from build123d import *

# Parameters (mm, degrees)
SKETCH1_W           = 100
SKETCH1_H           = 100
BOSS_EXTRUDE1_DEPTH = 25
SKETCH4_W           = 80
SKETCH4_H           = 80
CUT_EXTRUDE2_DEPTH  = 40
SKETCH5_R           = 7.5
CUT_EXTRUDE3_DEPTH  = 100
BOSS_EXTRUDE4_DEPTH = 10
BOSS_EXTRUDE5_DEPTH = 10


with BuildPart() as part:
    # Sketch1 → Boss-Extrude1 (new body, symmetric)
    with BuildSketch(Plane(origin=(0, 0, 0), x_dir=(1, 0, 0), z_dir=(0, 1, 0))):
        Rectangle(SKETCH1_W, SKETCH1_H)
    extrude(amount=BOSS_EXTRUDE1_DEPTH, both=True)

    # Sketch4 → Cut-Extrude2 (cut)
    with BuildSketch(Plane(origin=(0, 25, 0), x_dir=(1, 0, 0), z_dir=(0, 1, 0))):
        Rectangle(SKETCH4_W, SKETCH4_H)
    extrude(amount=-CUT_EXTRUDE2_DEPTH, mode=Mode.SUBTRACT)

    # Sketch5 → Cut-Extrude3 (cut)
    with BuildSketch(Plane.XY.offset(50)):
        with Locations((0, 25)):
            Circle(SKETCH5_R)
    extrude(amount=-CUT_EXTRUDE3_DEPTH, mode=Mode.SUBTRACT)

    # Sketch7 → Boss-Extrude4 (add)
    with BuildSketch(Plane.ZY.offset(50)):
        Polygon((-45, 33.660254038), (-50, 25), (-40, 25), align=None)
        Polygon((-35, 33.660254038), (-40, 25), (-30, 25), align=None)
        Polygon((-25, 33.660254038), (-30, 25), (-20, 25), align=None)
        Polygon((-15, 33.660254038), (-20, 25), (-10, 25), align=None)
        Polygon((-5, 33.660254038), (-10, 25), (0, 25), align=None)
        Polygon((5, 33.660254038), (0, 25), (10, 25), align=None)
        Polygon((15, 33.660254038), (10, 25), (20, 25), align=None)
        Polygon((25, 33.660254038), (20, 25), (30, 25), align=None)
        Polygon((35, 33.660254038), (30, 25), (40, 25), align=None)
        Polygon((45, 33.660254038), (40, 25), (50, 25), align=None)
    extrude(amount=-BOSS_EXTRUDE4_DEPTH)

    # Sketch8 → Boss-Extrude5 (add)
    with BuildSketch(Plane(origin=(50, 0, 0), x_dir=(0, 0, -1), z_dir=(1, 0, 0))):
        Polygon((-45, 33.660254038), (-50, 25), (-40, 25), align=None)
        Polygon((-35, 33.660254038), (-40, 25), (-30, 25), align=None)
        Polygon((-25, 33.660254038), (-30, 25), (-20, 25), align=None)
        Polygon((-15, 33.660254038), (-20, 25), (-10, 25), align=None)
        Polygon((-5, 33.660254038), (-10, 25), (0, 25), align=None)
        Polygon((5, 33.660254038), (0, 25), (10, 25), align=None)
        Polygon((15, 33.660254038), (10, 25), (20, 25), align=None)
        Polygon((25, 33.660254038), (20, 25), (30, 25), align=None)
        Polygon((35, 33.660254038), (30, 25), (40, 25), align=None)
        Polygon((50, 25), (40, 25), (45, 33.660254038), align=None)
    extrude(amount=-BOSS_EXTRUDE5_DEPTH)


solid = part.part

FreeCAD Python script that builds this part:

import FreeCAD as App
import Part
import Sketcher
Q = App.Units.Quantity

doc = App.newDocument("Part")
body = doc.addObject("PartDesign::Body", "Body")

sketch1 = body.newObject("Sketcher::SketchObject", "Sketch")
sketch1.AttachmentSupport = (doc.getObject("XZ_Plane"), [""])
sketch1.MapMode = "FlatFace"
sketch1.addGeometry(Part.LineSegment(App.Vector(-50, -50, 0), App.Vector(-50, 50, 0)), False)
sketch1.addGeometry(Part.LineSegment(App.Vector(-50, 50, 0), App.Vector(50, 50, 0)), False)
sketch1.addGeometry(Part.LineSegment(App.Vector(50, 50, 0), App.Vector(50, -50, 0)), False)
sketch1.addGeometry(Part.LineSegment(App.Vector(50, -50, 0), App.Vector(-50, -50, 0)), False)
sketch1.addConstraint(Sketcher.Constraint("Coincident", 0, 2, 1, 1))
sketch1.addConstraint(Sketcher.Constraint("Coincident", 1, 2, 2, 1))
sketch1.addConstraint(Sketcher.Constraint("Coincident", 2, 2, 3, 1))
sketch1.addConstraint(Sketcher.Constraint("Coincident", 3, 2, 0, 1))
sketch1.addConstraint(Sketcher.Constraint("Vertical", 0))
sketch1.addConstraint(Sketcher.Constraint("Horizontal", 1))
sketch1.addConstraint(Sketcher.Constraint("Vertical", 2))
sketch1.addConstraint(Sketcher.Constraint("Horizontal", 3))
sketch1.addConstraint(Sketcher.Constraint("Symmetric", 0, 2, 2, 2, -1, 1))
sketch1.addConstraint(Sketcher.Constraint("Equal", 3, 0))
sketch1.addConstraint(Sketcher.Constraint("DistanceX", 1, 1, 1, 2, 100.0))
pad1 = body.newObject("PartDesign::Pad", "Pad")
pad1.Profile = sketch1
pad1.Length = 50
pad1.Midplane = True

sketch2 = body.newObject("Sketcher::SketchObject", "Sketch001")
sketch2.AttachmentSupport = (doc.getObject("XZ_Plane"), [""])
sketch2.MapMode = "FlatFace"
sketch2.AttachmentOffset = App.Placement(App.Vector(0, 0, -25), App.Rotation())
sketch2.addGeometry(Part.LineSegment(App.Vector(-40, -40, 0), App.Vector(-40, 40, 0)), False)
sketch2.addGeometry(Part.LineSegment(App.Vector(-40, 40, 0), App.Vector(40, 40, 0)), False)
sketch2.addGeometry(Part.LineSegment(App.Vector(40, 40, 0), App.Vector(40, -40, 0)), False)
sketch2.addGeometry(Part.LineSegment(App.Vector(40, -40, 0), App.Vector(-40, -40, 0)), False)
sketch2.addConstraint(Sketcher.Constraint("Coincident", 0, 2, 1, 1))
sketch2.addConstraint(Sketcher.Constraint("Coincident", 1, 2, 2, 1))
sketch2.addConstraint(Sketcher.Constraint("Coincident", 2, 2, 3, 1))
sketch2.addConstraint(Sketcher.Constraint("Coincident", 3, 2, 0, 1))
sketch2.addConstraint(Sketcher.Constraint("Vertical", 0))
sketch2.addConstraint(Sketcher.Constraint("Horizontal", 1))
sketch2.addConstraint(Sketcher.Constraint("Vertical", 2))
sketch2.addConstraint(Sketcher.Constraint("Horizontal", 3))
sketch2.addConstraint(Sketcher.Constraint("Symmetric", 0, 2, 2, 2, -1, 1))
sketch2.addConstraint(Sketcher.Constraint("Equal", 3, 0))
sketch2.addConstraint(Sketcher.Constraint("DistanceX", 1, 1, 1, 2, 80.0))
pocket1 = body.newObject("PartDesign::Pocket", "Pocket")
pocket1.Profile = sketch2
pocket1.Length = 40
pocket1.Reversed = True

sketch3 = body.newObject("Sketcher::SketchObject", "Sketch002")
sketch3.AttachmentSupport = (doc.getObject("XY_Plane"), [""])
sketch3.MapMode = "FlatFace"
sketch3.AttachmentOffset = App.Placement(App.Vector(0, 0, 50), App.Rotation())
sketch3.addGeometry(Part.Circle(App.Vector(0, 25, 0), App.Vector(0, 0, 1), 8), False)
sketch3.addConstraint(Sketcher.Constraint("PointOnObject", 0, 3, -2))
sketch3.addConstraint(Sketcher.Constraint("Diameter", 0, 15.0))
sketch3.addConstraint(Sketcher.Constraint("DistanceY", -1, 1, 0, 3, 25.0))
pocket2 = body.newObject("PartDesign::Pocket", "Pocket001")
pocket2.Profile = sketch3
pocket2.Length = 100

sketch4 = body.newObject("Sketcher::SketchObject", "Sketch003")
sketch4.AttachmentSupport = (doc.getObject("YZ_Plane"), [""])
sketch4.MapMode = "FlatFace"
sketch4.AttachmentOffset = App.Placement(App.Vector(0, 0, -50), App.Rotation())
sketch4.addGeometry(Part.LineSegment(App.Vector(34, -45, 0), App.Vector(25, -50, 0)), False)
sketch4.addGeometry(Part.LineSegment(App.Vector(25, -50, 0), App.Vector(25, -40, 0)), False)
sketch4.addGeometry(Part.LineSegment(App.Vector(25, -40, 0), App.Vector(34, -45, 0)), False)
sketch4.addGeometry(Part.LineSegment(App.Vector(34, -35, 0), App.Vector(25, -40, 0)), False)
sketch4.addGeometry(Part.LineSegment(App.Vector(25, -40, 0), App.Vector(25, -30, 0)), False)
sketch4.addGeometry(Part.LineSegment(App.Vector(25, -30, 0), App.Vector(34, -35, 0)), False)
sketch4.addGeometry(Part.LineSegment(App.Vector(34, -25, 0), App.Vector(25, -30, 0)), False)
sketch4.addGeometry(Part.LineSegment(App.Vector(25, -30, 0), App.Vector(25, -20, 0)), False)
sketch4.addGeometry(Part.LineSegment(App.Vector(25, -20, 0), App.Vector(34, -25, 0)), False)
sketch4.addGeometry(Part.LineSegment(App.Vector(34, -15, 0), App.Vector(25, -20, 0)), False)
sketch4.addGeometry(Part.LineSegment(App.Vector(25, -20, 0), App.Vector(25, -10, 0)), False)
sketch4.addGeometry(Part.LineSegment(App.Vector(25, -10, 0), App.Vector(34, -15, 0)), False)
sketch4.addGeometry(Part.LineSegment(App.Vector(34, -5, 0), App.Vector(25, -10, 0)), False)
sketch4.addGeometry(Part.LineSegment(App.Vector(25, -10, 0), App.Vector(25, 0, 0)), False)
sketch4.addGeometry(Part.LineSegment(App.Vector(25, 0, 0), App.Vector(34, -5, 0)), False)
sketch4.addGeometry(Part.LineSegment(App.Vector(34, 5, 0), App.Vector(25, 0, 0)), False)
sketch4.addGeometry(Part.LineSegment(App.Vector(25, 0, 0), App.Vector(25, 10, 0)), False)
sketch4.addGeometry(Part.LineSegment(App.Vector(25, 10, 0), App.Vector(34, 5, 0)), False)
sketch4.addGeometry(Part.LineSegment(App.Vector(34, 15, 0), App.Vector(25, 10, 0)), False)
sketch4.addGeometry(Part.LineSegment(App.Vector(25, 10, 0), App.Vector(25, 20, 0)), False)
sketch4.addGeometry(Part.LineSegment(App.Vector(25, 20, 0), App.Vector(34, 15, 0)), False)
sketch4.addGeometry(Part.LineSegment(App.Vector(34, 25, 0), App.Vector(25, 20, 0)), False)
sketch4.addGeometry(Part.LineSegment(App.Vector(25, 20, 0), App.Vector(25, 30, 0)), False)
sketch4.addGeometry(Part.LineSegment(App.Vector(25, 30, 0), App.Vector(34, 25, 0)), False)
sketch4.addGeometry(Part.LineSegment(App.Vector(34, 35, 0), App.Vector(25, 30, 0)), False)
sketch4.addGeometry(Part.LineSegment(App.Vector(25, 30, 0), App.Vector(25, 40, 0)), False)
sketch4.addGeometry(Part.LineSegment(App.Vector(25, 40, 0), App.Vector(34, 35, 0)), False)
sketch4.addGeometry(Part.LineSegment(App.Vector(34, 45, 0), App.Vector(25, 40, 0)), False)
sketch4.addGeometry(Part.LineSegment(App.Vector(25, 40, 0), App.Vector(25, 50, 0)), False)
sketch4.addGeometry(Part.LineSegment(App.Vector(25, 50, 0), App.Vector(34, 45, 0)), False)
sketch4.addConstraint(Sketcher.Constraint("Coincident", 0, 2, 1, 1))
sketch4.addConstraint(Sketcher.Constraint("Coincident", 1, 2, 2, 1))
sketch4.addConstraint(Sketcher.Constraint("Coincident", 2, 2, 0, 1))
sketch4.addConstraint(Sketcher.Constraint("Coincident", 3, 2, 4, 1))
sketch4.addConstraint(Sketcher.Constraint("Coincident", 4, 2, 5, 1))
sketch4.addConstraint(Sketcher.Constraint("Coincident", 5, 2, 3, 1))
sketch4.addConstraint(Sketcher.Constraint("Coincident", 6, 2, 7, 1))
sketch4.addConstraint(Sketcher.Constraint("Coincident", 7, 2, 8, 1))
sketch4.addConstraint(Sketcher.Constraint("Coincident", 8, 2, 6, 1))
sketch4.addConstraint(Sketcher.Constraint("Coincident", 9, 2, 10, 1))
sketch4.addConstraint(Sketcher.Constraint("Coincident", 10, 2, 11, 1))
sketch4.addConstraint(Sketcher.Constraint("Coincident", 11, 2, 9, 1))
sketch4.addConstraint(Sketcher.Constraint("Coincident", 12, 2, 13, 1))
sketch4.addConstraint(Sketcher.Constraint("Coincident", 13, 2, 14, 1))
sketch4.addConstraint(Sketcher.Constraint("Coincident", 14, 2, 12, 1))
sketch4.addConstraint(Sketcher.Constraint("Coincident", 15, 2, 16, 1))
sketch4.addConstraint(Sketcher.Constraint("Coincident", 16, 2, 17, 1))
sketch4.addConstraint(Sketcher.Constraint("Coincident", 17, 2, 15, 1))
sketch4.addConstraint(Sketcher.Constraint("Coincident", 18, 2, 19, 1))
sketch4.addConstraint(Sketcher.Constraint("Coincident", 19, 2, 20, 1))
sketch4.addConstraint(Sketcher.Constraint("Coincident", 20, 2, 18, 1))
sketch4.addConstraint(Sketcher.Constraint("Coincident", 21, 2, 22, 1))
sketch4.addConstraint(Sketcher.Constraint("Coincident", 22, 2, 23, 1))
sketch4.addConstraint(Sketcher.Constraint("Coincident", 23, 2, 21, 1))
sketch4.addConstraint(Sketcher.Constraint("Coincident", 24, 2, 25, 1))
sketch4.addConstraint(Sketcher.Constraint("Coincident", 25, 2, 26, 1))
sketch4.addConstraint(Sketcher.Constraint("Coincident", 26, 2, 24, 1))
sketch4.addConstraint(Sketcher.Constraint("Coincident", 27, 2, 28, 1))
sketch4.addConstraint(Sketcher.Constraint("Coincident", 28, 2, 29, 1))
sketch4.addConstraint(Sketcher.Constraint("Coincident", 29, 2, 27, 1))
sketch4.addConstraint(Sketcher.Constraint("Vertical", 1))
sketch4.addConstraint(Sketcher.Constraint("Vertical", 4))
sketch4.addConstraint(Sketcher.Constraint("Vertical", 7))
sketch4.addConstraint(Sketcher.Constraint("Vertical", 10))
sketch4.addConstraint(Sketcher.Constraint("Vertical", 13))
sketch4.addConstraint(Sketcher.Constraint("Vertical", 16))
sketch4.addConstraint(Sketcher.Constraint("Vertical", 19))
sketch4.addConstraint(Sketcher.Constraint("Vertical", 22))
sketch4.addConstraint(Sketcher.Constraint("Vertical", 25))
sketch4.addConstraint(Sketcher.Constraint("Vertical", 28))
sketch4.addConstraint(Sketcher.Constraint("Coincident", 3, 2, 1, 2))
sketch4.addConstraint(Sketcher.Constraint("Coincident", 6, 2, 4, 2))
sketch4.addConstraint(Sketcher.Constraint("Coincident", 9, 2, 7, 2))
sketch4.addConstraint(Sketcher.Constraint("Coincident", 12, 2, 10, 2))
sketch4.addConstraint(Sketcher.Constraint("Coincident", 15, 2, 13, 2))
sketch4.addConstraint(Sketcher.Constraint("Coincident", 18, 2, 16, 2))
sketch4.addConstraint(Sketcher.Constraint("Coincident", 21, 2, 19, 2))
sketch4.addConstraint(Sketcher.Constraint("Coincident", 24, 2, 22, 2))
sketch4.addConstraint(Sketcher.Constraint("Coincident", 27, 2, 25, 2))
sketch4.addConstraint(Sketcher.Constraint("Symmetric", 14, 2, 17, 2, -1))
sketch4.addConstraint(Sketcher.Constraint("Symmetric", 11, 2, 20, 2, -1))
sketch4.addConstraint(Sketcher.Constraint("Symmetric", 8, 2, 23, 2, -1))
sketch4.addConstraint(Sketcher.Constraint("Symmetric", 5, 2, 26, 2, -1))
sketch4.addConstraint(Sketcher.Constraint("Symmetric", 2, 2, 29, 2, -1))
sketch4.addConstraint(Sketcher.Constraint("PointOnObject", 13, 2, -1))
sketch4.addConstraint(Sketcher.Constraint("Parallel", 0, 3))
sketch4.addConstraint(Sketcher.Constraint("Parallel", 2, 5))
sketch4.addConstraint(Sketcher.Constraint("Parallel", 3, 6))
sketch4.addConstraint(Sketcher.Constraint("Parallel", 5, 8))
sketch4.addConstraint(Sketcher.Constraint("Parallel", 6, 9))
sketch4.addConstraint(Sketcher.Constraint("Parallel", 8, 11))
sketch4.addConstraint(Sketcher.Constraint("Parallel", 9, 12))
sketch4.addConstraint(Sketcher.Constraint("Parallel", 11, 14))
sketch4.addConstraint(Sketcher.Constraint("Parallel", 12, 15))
sketch4.addConstraint(Sketcher.Constraint("Parallel", 14, 17))
sketch4.addConstraint(Sketcher.Constraint("Parallel", 17, 20))
sketch4.addConstraint(Sketcher.Constraint("Parallel", 20, 23))
sketch4.addConstraint(Sketcher.Constraint("Parallel", 23, 26))
sketch4.addConstraint(Sketcher.Constraint("Parallel", 26, 29))
sketch4.addConstraint(Sketcher.Constraint("Vertical", 2, 2, 5, 2))
sketch4.addConstraint(Sketcher.Constraint("Vertical", 5, 2, 8, 2))
sketch4.addConstraint(Sketcher.Constraint("Vertical", 8, 2, 11, 2))
sketch4.addConstraint(Sketcher.Constraint("Vertical", 11, 2, 14, 2))
sketch4.addConstraint(Sketcher.Constraint("DistanceY", 1, 1, 1, 2, 10.0))
sketch4.addConstraint(Sketcher.Constraint("Angle", 0, Q("-150 deg")))
sketch4.addConstraint(Sketcher.Constraint("DistanceX", -1, 1, 0, 2, 25.0))
pad2 = body.newObject("PartDesign::Pad", "Pad001")
pad2.Profile = sketch4
pad2.Length = 10

sketch5 = body.newObject("Sketcher::SketchObject", "Sketch004")
sketch5.AttachmentSupport = (doc.getObject("YZ_Plane"), [""])
sketch5.MapMode = "FlatFace"
sketch5.AttachmentOffset = App.Placement(App.Vector(0, 0, 50), App.Rotation())
sketch5.addGeometry(Part.LineSegment(App.Vector(34, 45, 0), App.Vector(25, 50, 0)), False)
sketch5.addGeometry(Part.LineSegment(App.Vector(25, 50, 0), App.Vector(25, 40, 0)), False)
sketch5.addGeometry(Part.LineSegment(App.Vector(25, 40, 0), App.Vector(34, 45, 0)), False)
sketch5.addGeometry(Part.LineSegment(App.Vector(34, 35, 0), App.Vector(25, 40, 0)), False)
sketch5.addGeometry(Part.LineSegment(App.Vector(25, 40, 0), App.Vector(25, 30, 0)), False)
sketch5.addGeometry(Part.LineSegment(App.Vector(25, 30, 0), App.Vector(34, 35, 0)), False)
sketch5.addGeometry(Part.LineSegment(App.Vector(34, 25, 0), App.Vector(25, 30, 0)), False)
sketch5.addGeometry(Part.LineSegment(App.Vector(25, 30, 0), App.Vector(25, 20, 0)), False)
sketch5.addGeometry(Part.LineSegment(App.Vector(25, 20, 0), App.Vector(34, 25, 0)), False)
sketch5.addGeometry(Part.LineSegment(App.Vector(34, 15, 0), App.Vector(25, 20, 0)), False)
sketch5.addGeometry(Part.LineSegment(App.Vector(25, 20, 0), App.Vector(25, 10, 0)), False)
sketch5.addGeometry(Part.LineSegment(App.Vector(25, 10, 0), App.Vector(34, 15, 0)), False)
sketch5.addGeometry(Part.LineSegment(App.Vector(34, 5, 0), App.Vector(25, 10, 0)), False)
sketch5.addGeometry(Part.LineSegment(App.Vector(25, 10, 0), App.Vector(25, 0, 0)), False)
sketch5.addGeometry(Part.LineSegment(App.Vector(25, 0, 0), App.Vector(34, 5, 0)), False)
sketch5.addGeometry(Part.LineSegment(App.Vector(34, -5, 0), App.Vector(25, 0, 0)), False)
sketch5.addGeometry(Part.LineSegment(App.Vector(25, 0, 0), App.Vector(25, -10, 0)), False)
sketch5.addGeometry(Part.LineSegment(App.Vector(25, -10, 0), App.Vector(34, -5, 0)), False)
sketch5.addGeometry(Part.LineSegment(App.Vector(34, -15, 0), App.Vector(25, -10, 0)), False)
sketch5.addGeometry(Part.LineSegment(App.Vector(25, -10, 0), App.Vector(25, -20, 0)), False)
sketch5.addGeometry(Part.LineSegment(App.Vector(25, -20, 0), App.Vector(34, -15, 0)), False)
sketch5.addGeometry(Part.LineSegment(App.Vector(34, -25, 0), App.Vector(25, -20, 0)), False)
sketch5.addGeometry(Part.LineSegment(App.Vector(25, -20, 0), App.Vector(25, -30, 0)), False)
sketch5.addGeometry(Part.LineSegment(App.Vector(25, -30, 0), App.Vector(34, -25, 0)), False)
sketch5.addGeometry(Part.LineSegment(App.Vector(34, -35, 0), App.Vector(25, -30, 0)), False)
sketch5.addGeometry(Part.LineSegment(App.Vector(25, -30, 0), App.Vector(25, -40, 0)), False)
sketch5.addGeometry(Part.LineSegment(App.Vector(25, -40, 0), App.Vector(34, -35, 0)), False)
sketch5.addGeometry(Part.LineSegment(App.Vector(25, -40, 0), App.Vector(25, -50, 0)), False)
sketch5.addGeometry(Part.LineSegment(App.Vector(25, -50, 0), App.Vector(34, -45, 0)), False)
sketch5.addGeometry(Part.LineSegment(App.Vector(34, -45, 0), App.Vector(25, -40, 0)), False)
sketch5.addConstraint(Sketcher.Constraint("Coincident", 0, 2, 1, 1))
sketch5.addConstraint(Sketcher.Constraint("Coincident", 1, 2, 2, 1))
sketch5.addConstraint(Sketcher.Constraint("Coincident", 2, 2, 0, 1))
sketch5.addConstraint(Sketcher.Constraint("Coincident", 3, 2, 4, 1))
sketch5.addConstraint(Sketcher.Constraint("Coincident", 4, 2, 5, 1))
sketch5.addConstraint(Sketcher.Constraint("Coincident", 5, 2, 3, 1))
sketch5.addConstraint(Sketcher.Constraint("Coincident", 6, 2, 7, 1))
sketch5.addConstraint(Sketcher.Constraint("Coincident", 7, 2, 8, 1))
sketch5.addConstraint(Sketcher.Constraint("Coincident", 8, 2, 6, 1))
sketch5.addConstraint(Sketcher.Constraint("Coincident", 9, 2, 10, 1))
sketch5.addConstraint(Sketcher.Constraint("Coincident", 10, 2, 11, 1))
sketch5.addConstraint(Sketcher.Constraint("Coincident", 11, 2, 9, 1))
sketch5.addConstraint(Sketcher.Constraint("Coincident", 12, 2, 13, 1))
sketch5.addConstraint(Sketcher.Constraint("Coincident", 13, 2, 14, 1))
sketch5.addConstraint(Sketcher.Constraint("Coincident", 14, 2, 12, 1))
sketch5.addConstraint(Sketcher.Constraint("Coincident", 15, 2, 16, 1))
sketch5.addConstraint(Sketcher.Constraint("Coincident", 16, 2, 17, 1))
sketch5.addConstraint(Sketcher.Constraint("Coincident", 17, 2, 15, 1))
sketch5.addConstraint(Sketcher.Constraint("Coincident", 18, 2, 19, 1))
sketch5.addConstraint(Sketcher.Constraint("Coincident", 19, 2, 20, 1))
sketch5.addConstraint(Sketcher.Constraint("Coincident", 20, 2, 18, 1))
sketch5.addConstraint(Sketcher.Constraint("Coincident", 21, 2, 22, 1))
sketch5.addConstraint(Sketcher.Constraint("Coincident", 22, 2, 23, 1))
sketch5.addConstraint(Sketcher.Constraint("Coincident", 23, 2, 21, 1))
sketch5.addConstraint(Sketcher.Constraint("Coincident", 24, 2, 25, 1))
sketch5.addConstraint(Sketcher.Constraint("Coincident", 25, 2, 26, 1))
sketch5.addConstraint(Sketcher.Constraint("Coincident", 26, 2, 24, 1))
sketch5.addConstraint(Sketcher.Constraint("Coincident", 27, 2, 28, 1))
sketch5.addConstraint(Sketcher.Constraint("Coincident", 28, 2, 29, 1))
sketch5.addConstraint(Sketcher.Constraint("Coincident", 29, 2, 27, 1))
sketch5.addConstraint(Sketcher.Constraint("Vertical", 1))
sketch5.addConstraint(Sketcher.Constraint("Vertical", 4))
sketch5.addConstraint(Sketcher.Constraint("Vertical", 7))
sketch5.addConstraint(Sketcher.Constraint("Vertical", 10))
sketch5.addConstraint(Sketcher.Constraint("Vertical", 13))
sketch5.addConstraint(Sketcher.Constraint("Vertical", 16))
sketch5.addConstraint(Sketcher.Constraint("Vertical", 19))
sketch5.addConstraint(Sketcher.Constraint("Vertical", 22))
sketch5.addConstraint(Sketcher.Constraint("Vertical", 25))
sketch5.addConstraint(Sketcher.Constraint("Vertical", 27))
sketch5.addConstraint(Sketcher.Constraint("Coincident", 3, 2, 1, 2))
sketch5.addConstraint(Sketcher.Constraint("Coincident", 6, 2, 4, 2))
sketch5.addConstraint(Sketcher.Constraint("Coincident", 9, 2, 7, 2))
sketch5.addConstraint(Sketcher.Constraint("Coincident", 12, 2, 10, 2))
sketch5.addConstraint(Sketcher.Constraint("Coincident", 15, 2, 13, 2))
sketch5.addConstraint(Sketcher.Constraint("Coincident", 18, 2, 16, 2))
sketch5.addConstraint(Sketcher.Constraint("Coincident", 21, 2, 19, 2))
sketch5.addConstraint(Sketcher.Constraint("Coincident", 24, 2, 22, 2))
sketch5.addConstraint(Sketcher.Constraint("Coincident", 29, 2, 25, 2))
sketch5.addConstraint(Sketcher.Constraint("Symmetric", 14, 2, 17, 2, -1))
sketch5.addConstraint(Sketcher.Constraint("Symmetric", 11, 2, 20, 2, -1))
sketch5.addConstraint(Sketcher.Constraint("Symmetric", 8, 2, 23, 2, -1))
sketch5.addConstraint(Sketcher.Constraint("Symmetric", 5, 2, 26, 2, -1))
sketch5.addConstraint(Sketcher.Constraint("Symmetric", 2, 2, 28, 2, -1))
sketch5.addConstraint(Sketcher.Constraint("PointOnObject", 13, 2, -1))
sketch5.addConstraint(Sketcher.Constraint("Parallel", 0, 3))
sketch5.addConstraint(Sketcher.Constraint("Parallel", 2, 5))
sketch5.addConstraint(Sketcher.Constraint("Parallel", 3, 6))
sketch5.addConstraint(Sketcher.Constraint("Parallel", 5, 8))
sketch5.addConstraint(Sketcher.Constraint("Parallel", 6, 9))
sketch5.addConstraint(Sketcher.Constraint("Parallel", 8, 11))
sketch5.addConstraint(Sketcher.Constraint("Parallel", 9, 12))
sketch5.addConstraint(Sketcher.Constraint("Parallel", 11, 14))
sketch5.addConstraint(Sketcher.Constraint("Parallel", 12, 15))
sketch5.addConstraint(Sketcher.Constraint("Parallel", 14, 17))
sketch5.addConstraint(Sketcher.Constraint("Parallel", 17, 20))
sketch5.addConstraint(Sketcher.Constraint("Parallel", 20, 23))
sketch5.addConstraint(Sketcher.Constraint("Parallel", 23, 26))
sketch5.addConstraint(Sketcher.Constraint("Parallel", 26, 28))
sketch5.addConstraint(Sketcher.Constraint("Vertical", 2, 2, 5, 2))
sketch5.addConstraint(Sketcher.Constraint("Vertical", 5, 2, 8, 2))
sketch5.addConstraint(Sketcher.Constraint("Vertical", 8, 2, 11, 2))
sketch5.addConstraint(Sketcher.Constraint("Vertical", 11, 2, 14, 2))
sketch5.addConstraint(Sketcher.Constraint("DistanceY", 1, 2, 1, 1, 10.0))
sketch5.addConstraint(Sketcher.Constraint("Angle", 0, Q("150 deg")))
sketch5.addConstraint(Sketcher.Constraint("DistanceX", -1, 1, 0, 2, 25.0))
pad3 = body.newObject("PartDesign::Pad", "Pad002")
pad3.Profile = sketch5
pad3.Length = 10
pad3.Reversed = True

doc.recompute()
